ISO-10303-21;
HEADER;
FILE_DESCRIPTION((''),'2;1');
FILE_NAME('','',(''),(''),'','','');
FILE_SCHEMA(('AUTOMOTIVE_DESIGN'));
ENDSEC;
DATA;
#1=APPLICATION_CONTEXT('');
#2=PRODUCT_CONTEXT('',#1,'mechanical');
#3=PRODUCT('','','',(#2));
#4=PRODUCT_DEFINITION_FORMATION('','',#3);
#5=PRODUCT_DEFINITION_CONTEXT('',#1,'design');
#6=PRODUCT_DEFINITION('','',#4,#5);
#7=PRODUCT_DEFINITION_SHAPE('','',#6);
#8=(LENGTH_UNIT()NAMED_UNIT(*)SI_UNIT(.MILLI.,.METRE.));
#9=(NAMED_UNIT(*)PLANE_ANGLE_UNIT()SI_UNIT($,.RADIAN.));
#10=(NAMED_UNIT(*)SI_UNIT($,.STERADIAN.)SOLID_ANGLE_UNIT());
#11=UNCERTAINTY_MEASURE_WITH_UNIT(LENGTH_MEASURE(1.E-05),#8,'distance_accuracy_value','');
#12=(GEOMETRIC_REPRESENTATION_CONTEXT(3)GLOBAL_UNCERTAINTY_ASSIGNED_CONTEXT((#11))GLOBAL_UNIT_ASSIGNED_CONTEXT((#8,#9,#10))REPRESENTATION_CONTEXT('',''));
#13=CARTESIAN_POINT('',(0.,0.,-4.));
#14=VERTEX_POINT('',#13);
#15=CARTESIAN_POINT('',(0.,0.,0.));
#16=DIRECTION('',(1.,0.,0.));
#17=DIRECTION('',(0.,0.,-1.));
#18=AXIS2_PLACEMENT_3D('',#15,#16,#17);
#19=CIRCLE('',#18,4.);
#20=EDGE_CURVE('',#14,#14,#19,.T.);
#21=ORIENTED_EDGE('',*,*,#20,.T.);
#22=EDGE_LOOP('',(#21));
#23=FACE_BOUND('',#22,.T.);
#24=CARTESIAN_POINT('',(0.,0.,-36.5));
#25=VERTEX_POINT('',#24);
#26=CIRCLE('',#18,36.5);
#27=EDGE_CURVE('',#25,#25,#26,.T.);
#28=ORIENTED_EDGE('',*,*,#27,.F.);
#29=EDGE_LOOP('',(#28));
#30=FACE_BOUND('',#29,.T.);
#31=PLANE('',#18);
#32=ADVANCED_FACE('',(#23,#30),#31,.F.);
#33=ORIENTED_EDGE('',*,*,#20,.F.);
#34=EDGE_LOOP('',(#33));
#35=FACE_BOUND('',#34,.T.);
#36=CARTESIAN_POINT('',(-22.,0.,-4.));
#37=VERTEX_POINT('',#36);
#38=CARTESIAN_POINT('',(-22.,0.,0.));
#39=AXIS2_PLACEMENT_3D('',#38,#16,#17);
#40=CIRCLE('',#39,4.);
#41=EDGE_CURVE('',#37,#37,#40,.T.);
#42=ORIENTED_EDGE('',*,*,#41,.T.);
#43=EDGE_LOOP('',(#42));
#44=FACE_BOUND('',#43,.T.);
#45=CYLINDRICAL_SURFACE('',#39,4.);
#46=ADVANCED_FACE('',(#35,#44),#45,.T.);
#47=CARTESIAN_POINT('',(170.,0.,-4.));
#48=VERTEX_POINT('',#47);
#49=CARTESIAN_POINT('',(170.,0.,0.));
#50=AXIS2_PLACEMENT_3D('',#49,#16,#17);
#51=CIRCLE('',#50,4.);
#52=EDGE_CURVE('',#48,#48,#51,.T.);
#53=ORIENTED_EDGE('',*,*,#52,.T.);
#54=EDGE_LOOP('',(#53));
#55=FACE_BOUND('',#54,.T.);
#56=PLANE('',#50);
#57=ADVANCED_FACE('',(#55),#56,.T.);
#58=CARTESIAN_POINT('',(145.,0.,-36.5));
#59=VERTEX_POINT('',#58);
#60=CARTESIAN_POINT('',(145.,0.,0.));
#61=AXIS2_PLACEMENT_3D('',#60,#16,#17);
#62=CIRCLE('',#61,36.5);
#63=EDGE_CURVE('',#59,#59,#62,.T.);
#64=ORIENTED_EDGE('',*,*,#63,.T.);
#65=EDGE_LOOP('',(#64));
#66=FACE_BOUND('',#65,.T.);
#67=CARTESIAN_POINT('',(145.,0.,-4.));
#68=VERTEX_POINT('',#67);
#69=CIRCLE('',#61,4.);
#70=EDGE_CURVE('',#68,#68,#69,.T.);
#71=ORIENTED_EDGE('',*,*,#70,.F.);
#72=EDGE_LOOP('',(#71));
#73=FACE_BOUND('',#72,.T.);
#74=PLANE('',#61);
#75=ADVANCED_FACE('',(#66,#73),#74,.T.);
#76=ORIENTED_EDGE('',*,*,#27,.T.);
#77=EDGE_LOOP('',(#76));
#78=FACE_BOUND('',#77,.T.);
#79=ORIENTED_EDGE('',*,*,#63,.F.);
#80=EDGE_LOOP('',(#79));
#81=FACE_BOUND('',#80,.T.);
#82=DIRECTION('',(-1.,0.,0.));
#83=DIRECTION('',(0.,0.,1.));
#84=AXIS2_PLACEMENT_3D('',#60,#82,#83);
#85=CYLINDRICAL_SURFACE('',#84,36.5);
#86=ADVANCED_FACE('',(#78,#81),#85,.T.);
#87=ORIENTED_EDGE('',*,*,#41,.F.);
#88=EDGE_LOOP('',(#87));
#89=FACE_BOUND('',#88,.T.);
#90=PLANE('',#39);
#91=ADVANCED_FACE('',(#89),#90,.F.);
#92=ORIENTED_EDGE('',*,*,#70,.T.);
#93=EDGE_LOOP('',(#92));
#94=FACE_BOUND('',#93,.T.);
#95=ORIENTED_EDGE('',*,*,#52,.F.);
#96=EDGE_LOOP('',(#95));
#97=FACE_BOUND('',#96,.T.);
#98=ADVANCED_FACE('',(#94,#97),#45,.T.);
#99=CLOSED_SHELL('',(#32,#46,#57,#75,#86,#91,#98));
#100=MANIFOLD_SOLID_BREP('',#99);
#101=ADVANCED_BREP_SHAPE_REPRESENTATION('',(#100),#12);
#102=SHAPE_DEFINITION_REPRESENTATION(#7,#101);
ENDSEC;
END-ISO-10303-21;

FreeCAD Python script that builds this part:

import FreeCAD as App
import Part
import Sketcher
from FreeCAD import Vector

doc = App.newDocument("Part")
params = doc.addObject("Spreadsheet::Sheet", "Params")
for row, (alias, value) in enumerate([
    ("sketch1_diameter", "73 mm"),
    ("sketch1_diameter2", "8 mm"),
    ("pad1_length", "145 mm"),
    ("sketch2_diameter", "8 mm"),
    ("pad2_length", "170 mm"),
    ("pad2_length2", "22 mm"),
], start=1):
    params.set(f"A{row}", alias)
    params.set(f"B{row}", "=" + value)
    params.setAlias(f"B{row}", alias)

body = doc.addObject("PartDesign::Body", "Body")

# Sketch on YZ plane
sketch1 = body.newObject("Sketcher::SketchObject", "Sketch")
sketch1.AttachmentSupport = (doc.getObject("YZ_Plane"), [""])
sketch1.MapMode = "FlatFace"
sketch1.addGeometry([
    Part.Circle(Vector(0, 0, 0), Vector(0, 0, 1), 36.5),
    Part.Circle(Vector(0, 0, 0), Vector(0, 0, 1), 4),
], False)
sketch1.addConstraint([
    Sketcher.Constraint("Coincident", 0, 3, -1, 1),
    Sketcher.Constraint("Coincident", 1, 3, -1, 1),
    Sketcher.Constraint("Diameter", 0, 73.0),
    Sketcher.Constraint("Diameter", 1, 8.0),
])
sketch1.setExpression("Constraints[2]", "Params.sketch1_diameter")
sketch1.setExpression("Constraints[3]", "Params.sketch1_diameter2")
pad1 = body.newObject("PartDesign::Pad", "Pad")
pad1.Profile = sketch1
pad1.setExpression("Length", "Params.pad1_length")

# Sketch on YZ plane
sketch2 = body.newObject("Sketcher::SketchObject", "Sketch001")
sketch2.AttachmentSupport = (doc.getObject("YZ_Plane"), [""])
sketch2.MapMode = "FlatFace"
sketch2.addGeometry(Part.Circle(Vector(0, 0, 0), Vector(0, 0, 1), 4), False)
sketch2.addConstraint([
    Sketcher.Constraint("Coincident", 0, 3, -1, 1),
    Sketcher.Constraint("Diameter", 0, 8.0),
])
sketch2.setExpression("Constraints[1]", "Params.sketch2_diameter")
pad2 = body.newObject("PartDesign::Pad", "Pad001")
pad2.Profile = sketch2
pad2.Type = "TwoLengths"
pad2.setExpression("Length", "Params.pad2_length")
pad2.setExpression("Length2", "Params.pad2_length2")

doc.recompute()
